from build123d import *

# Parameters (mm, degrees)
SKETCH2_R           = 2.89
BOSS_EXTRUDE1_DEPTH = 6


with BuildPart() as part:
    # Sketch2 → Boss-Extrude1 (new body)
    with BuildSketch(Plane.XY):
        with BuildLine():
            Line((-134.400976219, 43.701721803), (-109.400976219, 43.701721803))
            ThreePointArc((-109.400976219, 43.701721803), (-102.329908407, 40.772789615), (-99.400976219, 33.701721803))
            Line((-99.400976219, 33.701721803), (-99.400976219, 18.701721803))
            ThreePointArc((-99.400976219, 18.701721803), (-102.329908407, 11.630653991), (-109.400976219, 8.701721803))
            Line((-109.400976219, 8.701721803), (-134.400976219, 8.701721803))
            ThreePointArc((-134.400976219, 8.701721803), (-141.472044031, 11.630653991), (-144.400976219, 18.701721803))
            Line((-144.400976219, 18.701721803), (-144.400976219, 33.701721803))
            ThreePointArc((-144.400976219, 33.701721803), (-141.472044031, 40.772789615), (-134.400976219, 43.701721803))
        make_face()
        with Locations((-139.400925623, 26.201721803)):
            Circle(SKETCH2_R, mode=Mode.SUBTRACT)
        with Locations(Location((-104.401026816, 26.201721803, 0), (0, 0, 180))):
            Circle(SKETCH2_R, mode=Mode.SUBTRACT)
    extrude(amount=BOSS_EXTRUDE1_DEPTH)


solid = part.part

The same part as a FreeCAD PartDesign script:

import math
import FreeCAD as App
import Part
import Sketcher
from FreeCAD import Vector

doc = App.newDocument("Part")
body = doc.addObject("PartDesign::Body", "Body")

# Sketch on XY plane
sketch1 = body.newObject("Sketcher::SketchObject", "Sketch")
sketch1.AttachmentSupport = (doc.getObject("XY_Plane"), [""])
sketch1.MapMode = "FlatFace"
sketch1.addGeometry([
    Part.LineSegment(Vector(-109.400976, 43.701722, 0), Vector(-134.400976, 43.701722, 0)),  # 0
    Part.ArcOfCircle(Part.Circle(Vector(-134.400976, 33.701722, 0), Vector(0, 0, 1), 10), math.radians(90), math.radians(180)),  # 1
    Part.LineSegment(Vector(-144.400976, 33.701722, 0), Vector(-144.400976, 18.701722, 0)),  # 2
    Part.ArcOfCircle(Part.Circle(Vector(-134.400976, 18.701722, 0), Vector(0, 0, 1), 10), math.radians(180), math.radians(270)),  # 3
    Part.LineSegment(Vector(-134.400976, 8.701722, 0), Vector(-109.400976, 8.701722, 0)),  # 4
    Part.ArcOfCircle(Part.Circle(Vector(-109.400976, 18.701722, 0), Vector(0, 0, 1), 10), math.radians(-90), math.radians(0)),  # 5
    Part.LineSegment(Vector(-99.400976, 18.701722, 0), Vector(-99.400976, 33.701722, 0)),  # 6
    Part.ArcOfCircle(Part.Circle(Vector(-109.400976, 33.701722, 0), Vector(0, 0, 1), 10), math.radians(0), math.radians(90)),  # 7
    Part.Circle(Vector(-104.401027, 26.201722, 0), Vector(0, 0, 1), 2.89),  # 8
    Part.Circle(Vector(-139.400926, 26.201722, 0), Vector(0, 0, 1), 2.89),  # 9
], False)
sketch1.addConstraint([
    Sketcher.Constraint("Tangent", 0, 2, 1, 1),
    Sketcher.Constraint("Tangent", 1, 2, 2, 1),
    Sketcher.Constraint("Tangent", 2, 2, 3, 1),
    Sketcher.Constraint("Tangent", 3, 2, 4, 1),
    Sketcher.Constraint("Tangent", 4, 2, 5, 1),
    Sketcher.Constraint("Tangent", 5, 2, 6, 1),
    Sketcher.Constraint("Tangent", 6, 2, 7, 1),
    Sketcher.Constraint("Tangent", 7, 2, 0, 1),
    Sketcher.Constraint("Horizontal", 0),
    Sketcher.Constraint("Vertical", 2),
    Sketcher.Constraint("Horizontal", 4),
    Sketcher.Constraint("Vertical", 6),
    Sketcher.Constraint("Equal", 1, 3),
    Sketcher.Constraint("Equal", 3, 5),
    Sketcher.Constraint("Equal", 5, 7),
    Sketcher.Constraint("Equal", 8, 9),
    Sketcher.Constraint("Horizontal", 8, 3, 9, 3),
    Sketcher.Constraint("Radius", 1, 10.0),
    Sketcher.Constraint("Diameter", 8, 5.78),
    Sketcher.Constraint("DistanceX", 0, 2, 0, 1, 25.0),
    Sketcher.Constraint("DistanceY", 2, 2, 2, 1, 15.0),
    Sketcher.Constraint("DistanceY", 8, 3, 7, 3, 7.5),
    Sketcher.Constraint("DistanceX", 9, 3, 8, 3, 34.999899),
    Sketcher.Constraint("DistanceY", -1, 1, 1, 3, 33.701722),
    Sketcher.Constraint("DistanceX", 7, 3, 8, 3, 4.999949),
    Sketcher.Constraint("DistanceX", 1, 3, -1, 1, 134.400976),
])
pad1 = body.newObject("PartDesign::Pad", "Pad")
pad1.Profile = sketch1
pad1.Length = 6

doc.recompute()
